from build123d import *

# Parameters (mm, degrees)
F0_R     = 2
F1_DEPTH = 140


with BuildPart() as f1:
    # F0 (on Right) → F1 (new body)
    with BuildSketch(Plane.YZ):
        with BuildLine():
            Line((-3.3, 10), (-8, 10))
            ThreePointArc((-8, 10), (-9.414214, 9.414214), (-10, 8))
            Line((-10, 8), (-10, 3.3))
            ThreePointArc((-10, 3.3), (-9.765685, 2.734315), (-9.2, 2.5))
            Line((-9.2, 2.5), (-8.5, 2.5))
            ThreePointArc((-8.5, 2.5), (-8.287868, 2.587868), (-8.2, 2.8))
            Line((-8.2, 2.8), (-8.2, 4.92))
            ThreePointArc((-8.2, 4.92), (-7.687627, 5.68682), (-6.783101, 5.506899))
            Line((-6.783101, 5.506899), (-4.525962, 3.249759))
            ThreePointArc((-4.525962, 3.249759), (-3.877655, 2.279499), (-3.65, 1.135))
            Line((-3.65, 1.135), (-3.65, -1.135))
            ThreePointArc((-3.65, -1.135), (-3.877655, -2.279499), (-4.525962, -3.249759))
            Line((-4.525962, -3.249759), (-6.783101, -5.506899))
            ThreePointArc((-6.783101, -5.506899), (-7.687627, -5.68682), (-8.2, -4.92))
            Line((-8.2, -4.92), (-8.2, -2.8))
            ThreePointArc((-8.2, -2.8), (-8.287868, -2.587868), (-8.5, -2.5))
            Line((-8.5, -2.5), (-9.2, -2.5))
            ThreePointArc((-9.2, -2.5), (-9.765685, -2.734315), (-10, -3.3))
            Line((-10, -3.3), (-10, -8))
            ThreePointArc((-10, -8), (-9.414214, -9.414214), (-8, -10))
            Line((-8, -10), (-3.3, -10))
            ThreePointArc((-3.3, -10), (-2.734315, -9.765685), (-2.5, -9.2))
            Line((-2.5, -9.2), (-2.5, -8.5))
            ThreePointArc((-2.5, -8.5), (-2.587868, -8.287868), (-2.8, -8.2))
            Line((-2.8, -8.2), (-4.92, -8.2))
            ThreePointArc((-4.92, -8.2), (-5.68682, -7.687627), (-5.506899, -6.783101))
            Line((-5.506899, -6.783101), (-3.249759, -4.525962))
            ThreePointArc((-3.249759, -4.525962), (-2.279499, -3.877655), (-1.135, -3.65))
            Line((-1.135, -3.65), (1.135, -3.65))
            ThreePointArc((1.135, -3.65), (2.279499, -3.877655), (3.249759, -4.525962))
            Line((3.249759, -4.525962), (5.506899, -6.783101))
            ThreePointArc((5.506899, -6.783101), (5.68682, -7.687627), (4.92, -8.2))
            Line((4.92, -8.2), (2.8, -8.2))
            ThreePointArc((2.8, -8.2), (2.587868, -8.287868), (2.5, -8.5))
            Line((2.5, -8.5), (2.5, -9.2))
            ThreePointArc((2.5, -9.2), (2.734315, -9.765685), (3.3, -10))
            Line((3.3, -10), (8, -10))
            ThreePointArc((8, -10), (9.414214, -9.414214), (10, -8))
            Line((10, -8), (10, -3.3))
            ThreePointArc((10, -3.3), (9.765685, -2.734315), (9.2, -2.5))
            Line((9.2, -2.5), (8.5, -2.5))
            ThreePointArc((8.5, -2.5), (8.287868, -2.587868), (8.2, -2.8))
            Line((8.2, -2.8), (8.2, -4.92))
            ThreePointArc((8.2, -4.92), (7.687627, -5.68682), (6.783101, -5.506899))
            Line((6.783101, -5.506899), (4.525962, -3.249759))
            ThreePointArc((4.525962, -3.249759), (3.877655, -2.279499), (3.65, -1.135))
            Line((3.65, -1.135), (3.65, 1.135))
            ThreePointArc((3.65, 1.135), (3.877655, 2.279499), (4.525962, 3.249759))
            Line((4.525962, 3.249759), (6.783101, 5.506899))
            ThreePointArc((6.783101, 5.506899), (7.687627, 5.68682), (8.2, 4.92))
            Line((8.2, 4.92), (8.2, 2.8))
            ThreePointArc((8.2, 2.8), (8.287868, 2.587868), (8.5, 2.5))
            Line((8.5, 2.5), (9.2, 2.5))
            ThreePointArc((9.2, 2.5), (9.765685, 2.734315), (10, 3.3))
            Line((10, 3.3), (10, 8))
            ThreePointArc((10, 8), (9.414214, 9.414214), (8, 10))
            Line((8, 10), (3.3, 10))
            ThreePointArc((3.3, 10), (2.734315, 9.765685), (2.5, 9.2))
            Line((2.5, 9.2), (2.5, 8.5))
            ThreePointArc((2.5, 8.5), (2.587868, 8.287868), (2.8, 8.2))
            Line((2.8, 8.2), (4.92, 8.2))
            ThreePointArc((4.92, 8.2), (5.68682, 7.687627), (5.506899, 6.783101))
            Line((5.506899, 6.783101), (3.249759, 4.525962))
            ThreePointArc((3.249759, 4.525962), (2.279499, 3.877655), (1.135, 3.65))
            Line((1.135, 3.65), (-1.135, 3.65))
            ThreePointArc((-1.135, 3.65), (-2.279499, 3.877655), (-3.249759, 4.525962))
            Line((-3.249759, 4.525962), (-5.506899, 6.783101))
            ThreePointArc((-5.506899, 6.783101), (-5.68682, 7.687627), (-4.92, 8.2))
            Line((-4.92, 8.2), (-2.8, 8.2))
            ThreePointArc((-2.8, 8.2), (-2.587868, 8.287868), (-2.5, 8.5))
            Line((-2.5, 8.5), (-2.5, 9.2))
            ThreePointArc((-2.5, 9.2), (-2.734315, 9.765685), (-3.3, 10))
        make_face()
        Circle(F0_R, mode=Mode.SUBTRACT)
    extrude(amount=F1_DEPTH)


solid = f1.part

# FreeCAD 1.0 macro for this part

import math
import FreeCAD as App
import Part
import Sketcher
Q = App.Units.Quantity

doc = App.newDocument("Part")
params = doc.addObject("Spreadsheet::Sheet", "Params")
for row, (alias, value) in enumerate([
    ("sketch1_diameter", "4 mm"),
    ("sketch1_radius", "0.800001 mm"),
    ("sketch1_radius2", "0.3 mm"),
    ("sketch1_radius3", "0.83 mm"),
    ("sketch1_width", "4.7 mm"),
    ("pad1_length", "140 mm"),
], start=1):
    params.set(f"A{row}", alias)
    params.set(f"B{row}", "=" + value)
    params.setAlias(f"B{row}", alias)

body = doc.addObject("PartDesign::Body", "Body")

# Sketch on YZ plane
sketch1 = body.newObject("Sketcher::SketchObject", "Sketch")
sketch1.AttachmentSupport = (doc.getObject("YZ_Plane"), [""])
sketch1.MapMode = "FlatFace"
sketch1.addGeometry(Part.LineSegment(App.Vector(-3.3, 10, 0), App.Vector(-8, 10, 0)), False)
sketch1.addGeometry(Part.ArcOfCircle(Part.Circle(App.Vector(-8, 8, 0), App.Vector(0, 0, 1), 2), math.radians(90), math.radians(180)), False)
sketch1.addGeometry(Part.LineSegment(App.Vector(-10, 8, 0), App.Vector(-10, 3.3, 0)), False)
sketch1.addGeometry(Part.ArcOfCircle(Part.Circle(App.Vector(-9.2, 3.3, 0), App.Vector(0, 0, 1), 0.8), math.radians(-180), math.radians(-90)), False)
sketch1.addGeometry(Part.LineSegment(App.Vector(-9.2, 2.5, 0), App.Vector(-8.5, 2.5, 0)), False)
sketch1.addGeometry(Part.ArcOfCircle(Part.Circle(App.Vector(-8.5, 2.8, 0), App.Vector(0, 0, 1), 0.3), math.radians(-90), math.radians(0)), False)
sketch1.addGeometry(Part.LineSegment(App.Vector(-8.2, 2.8, 0), App.Vector(-8.2, 4.92, 0)), False)
sketch1.addGeometry(Part.ArcOfCircle(Part.Circle(App.Vector(-7.37, 4.92, 0), App.Vector(0, 0, 1), 0.83), math.radians(45), math.radians(180)), False)
sketch1.addGeometry(Part.LineSegment(App.Vector(-6.78, 5.51, 0), App.Vector(-4.53, 3.25, 0)), False)
sketch1.addGeometry(Part.ArcOfCircle(Part.Circle(App.Vector(-6.64, 1.13, 0), App.Vector(0, 0, 1), 2.99), math.radians(0), math.radians(45)), False)
sketch1.addGeometry(Part.LineSegment(App.Vector(-3.65, 1.14, 0), App.Vector(-3.65, -1.14, 0)), False)
sketch1.addGeometry(Part.ArcOfCircle(Part.Circle(App.Vector(-6.64, -1.13, 0), App.Vector(0, 0, 1), 2.99), math.radians(-45), math.radians(0)), False)
sketch1.addGeometry(Part.LineSegment(App.Vector(-4.53, -3.25, 0), App.Vector(-6.78, -5.51, 0)), False)
sketch1.addGeometry(Part.ArcOfCircle(Part.Circle(App.Vector(-7.37, -4.92, 0), App.Vector(0, 0, 1), 0.83), math.radians(-180), math.radians(-45)), False)
sketch1.addGeometry(Part.LineSegment(App.Vector(-8.2, -4.92, 0), App.Vector(-8.2, -2.8, 0)), False)
sketch1.addGeometry(Part.ArcOfCircle(Part.Circle(App.Vector(-8.5, -2.8, 0), App.Vector(0, 0, 1), 0.3), math.radians(0), math.radians(90)), False)
sketch1.addGeometry(Part.LineSegment(App.Vector(-8.5, -2.5, 0), App.Vector(-9.2, -2.5, 0)), False)
sketch1.addGeometry(Part.ArcOfCircle(Part.Circle(App.Vector(-9.2, -3.3, 0), App.Vector(0, 0, 1), 0.8), math.radians(90), math.radians(180)), False)
sketch1.addGeometry(Part.LineSegment(App.Vector(-10, -3.3, 0), App.Vector(-10, -8, 0)), False)
sketch1.addGeometry(Part.ArcOfCircle(Part.Circle(App.Vector(-8, -8, 0), App.Vector(0, 0, 1), 2), math.radians(180), math.radians(270)), False)
sketch1.addGeometry(Part.LineSegment(App.Vector(-8, -10, 0), App.Vector(-3.3, -10, 0)), False)
sketch1.addGeometry(Part.ArcOfCircle(Part.Circle(App.Vector(-3.3, -9.2, 0), App.Vector(0, 0, 1), 0.8), math.radians(-90), math.radians(0)), False)
sketch1.addGeometry(Part.LineSegment(App.Vector(-2.5, -9.2, 0), App.Vector(-2.5, -8.5, 0)), False)
sketch1.addGeometry(Part.ArcOfCircle(Part.Circle(App.Vector(-2.8, -8.5, 0), App.Vector(0, 0, 1), 0.3), math.radians(0), math.radians(90)), False)
sketch1.addGeometry(Part.LineSegment(App.Vector(-2.8, -8.2, 0), App.Vector(-4.92, -8.2, 0)), False)
sketch1.addGeometry(Part.ArcOfCircle(Part.Circle(App.Vector(-4.92, -7.37, 0), App.Vector(0, 0, 1), 0.83), math.radians(135), math.radians(270)), False)
sketch1.addGeometry(Part.LineSegment(App.Vector(-5.51, -6.78, 0), App.Vector(-3.25, -4.53, 0)), False)
sketch1.addGeometry(Part.ArcOfCircle(Part.Circle(App.Vector(-1.13, -6.64, 0), App.Vector(0, 0, 1), 2.99), math.radians(90), math.radians(135)), False)
sketch1.addGeometry(Part.LineSegment(App.Vector(-1.14, -3.65, 0), App.Vector(1.14, -3.65, 0)), False)
sketch1.addGeometry(Part.ArcOfCircle(Part.Circle(App.Vector(1.13, -6.64, 0), App.Vector(0, 0, 1), 2.99), math.radians(45), math.radians(90)), False)
sketch1.addGeometry(Part.LineSegment(App.Vector(3.25, -4.53, 0), App.Vector(5.51, -6.78, 0)), False)
sketch1.addGeometry(Part.ArcOfCircle(Part.Circle(App.Vector(4.92, -7.37, 0), App.Vector(0, 0, 1), 0.83), math.radians(-90), math.radians(45)), False)
sketch1.addGeometry(Part.LineSegment(App.Vector(4.92, -8.2, 0), App.Vector(2.8, -8.2, 0)), False)
sketch1.addGeometry(Part.ArcOfCircle(Part.Circle(App.Vector(2.8, -8.5, 0), App.Vector(0, 0, 1), 0.3), math.radians(90), math.radians(180)), False)
sketch1.addGeometry(Part.LineSegment(App.Vector(2.5, -8.5, 0), App.Vector(2.5, -9.2, 0)), False)
sketch1.addGeometry(Part.ArcOfCircle(Part.Circle(App.Vector(3.3, -9.2, 0), App.Vector(0, 0, 1), 0.8), math.radians(-180), math.radians(-90)), False)
sketch1.addGeometry(Part.LineSegment(App.Vector(3.3, -10, 0), App.Vector(8, -10, 0)), False)
sketch1.addGeometry(Part.ArcOfCircle(Part.Circle(App.Vector(8, -8, 0), App.Vector(0, 0, 1), 2), math.radians(-90), math.radians(0)), False)
sketch1.addGeometry(Part.LineSegment(App.Vector(10, -8, 0), App.Vector(10, -3.3, 0)), False)
sketch1.addGeometry(Part.ArcOfCircle(Part.Circle(App.Vector(9.2, -3.3, 0), App.Vector(0, 0, 1), 0.8), math.radians(0), math.radians(90)), False)
sketch1.addGeometry(Part.LineSegment(App.Vector(9.2, -2.5, 0), App.Vector(8.5, -2.5, 0)), False)
sketch1.addGeometry(Part.ArcOfCircle(Part.Circle(App.Vector(8.5, -2.8, 0), App.Vector(0, 0, 1), 0.3), math.radians(90), math.radians(180)), False)
sketch1.addGeometry(Part.LineSegment(App.Vector(8.2, -2.8, 0), App.Vector(8.2, -4.92, 0)), False)
sketch1.addGeometry(Part.ArcOfCircle(Part.Circle(App.Vector(7.37, -4.92, 0), App.Vector(0, 0, 1), 0.83), math.radians(-135), math.radians(0)), False)
sketch1.addGeometry(Part.LineSegment(App.Vector(6.78, -5.51, 0), App.Vector(4.53, -3.25, 0)), False)
sketch1.addGeometry(Part.ArcOfCircle(Part.Circle(App.Vector(6.64, -1.13, 0), App.Vector(0, 0, 1), 2.99), math.radians(-180), math.radians(-135)), False)
sketch1.addGeometry(Part.LineSegment(App.Vector(3.65, -1.14, 0), App.Vector(3.65, 1.14, 0)), False)
sketch1.addGeometry(Part.ArcOfCircle(Part.Circle(App.Vector(6.64, 1.13, 0), App.Vector(0, 0, 1), 2.99), math.radians(135), math.radians(180)), False)
sketch1.addGeometry(Part.LineSegment(App.Vector(4.53, 3.25, 0), App.Vector(6.78, 5.51, 0)), False)
sketch1.addGeometry(Part.ArcOfCircle(Part.Circle(App.Vector(7.37, 4.92, 0), App.Vector(0, 0, 1), 0.83), math.radians(0), math.radians(135)), False)
sketch1.addGeometry(Part.LineSegment(App.Vector(8.2, 4.92, 0), App.Vector(8.2, 2.8, 0)), False)
sketch1.addGeometry(Part.ArcOfCircle(Part.Circle(App.Vector(8.5, 2.8, 0), App.Vector(0, 0, 1), 0.3), math.radians(-180), math.radians(-90)), False)
sketch1.addGeometry(Part.LineSegment(App.Vector(8.5, 2.5, 0), App.Vector(9.2, 2.5, 0)), False)
sketch1.addGeometry(Part.ArcOfCircle(Part.Circle(App.Vector(9.2, 3.3, 0), App.Vector(0, 0, 1), 0.8), math.radians(-90), math.radians(0)), False)
sketch1.addGeometry(Part.LineSegment(App.Vector(10, 3.3, 0), App.Vector(10, 8, 0)), False)
sketch1.addGeometry(Part.ArcOfCircle(Part.Circle(App.Vector(8, 8, 0), App.Vector(0, 0, 1), 2), math.radians(0), math.radians(90)), False)
sketch1.addGeometry(Part.LineSegment(App.Vector(8, 10, 0), App.Vector(3.3, 10, 0)), False)
sketch1.addGeometry(Part.ArcOfCircle(Part.Circle(App.Vector(3.3, 9.2, 0), App.Vector(0, 0, 1), 0.8), math.radians(90), math.radians(180)), False)
sketch1.addGeometry(Part.LineSegment(App.Vector(2.5, 9.2, 0), App.Vector(2.5, 8.5, 0)), False)
sketch1.addGeometry(Part.ArcOfCircle(Part.Circle(App.Vector(2.8, 8.5, 0), App.Vector(0, 0, 1), 0.3), math.radians(-180), math.radians(-90)), False)
sketch1.addGeometry(Part.LineSegment(App.Vector(2.8, 8.2, 0), App.Vector(4.92, 8.2, 0)), False)
sketch1.addGeometry(Part.ArcOfCircle(Part.Circle(App.Vector(4.92, 7.37, 0), App.Vector(0, 0, 1), 0.83), math.radians(-45), math.radians(90)), False)
sketch1.addGeometry(Part.LineSegment(App.Vector(5.51, 6.78, 0), App.Vector(3.25, 4.53, 0)), False)
sketch1.addGeometry(Part.ArcOfCircle(Part.Circle(App.Vector(1.13, 6.64, 0), App.Vector(0, 0, 1), 2.99), math.radians(-90), math.radians(-45)), False)
sketch1.addGeometry(Part.LineSegment(App.Vector(1.14, 3.65, 0), App.Vector(-1.14, 3.65, 0)), False)
sketch1.addGeometry(Part.ArcOfCircle(Part.Circle(App.Vector(-1.13, 6.64, 0), App.Vector(0, 0, 1), 2.99), math.radians(-135), math.radians(-90)), False)
sketch1.addGeometry(Part.LineSegment(App.Vector(-3.25, 4.53, 0), App.Vector(-5.51, 6.78, 0)), False)
sketch1.addGeometry(Part.ArcOfCircle(Part.Circle(App.Vector(-4.92, 7.37, 0), App.Vector(0, 0, 1), 0.83), math.radians(90), math.radians(225)), False)
sketch1.addGeometry(Part.LineSegment(App.Vector(-4.92, 8.2, 0), App.Vector(-2.8, 8.2, 0)), False)
sketch1.addGeometry(Part.ArcOfCircle(Part.Circle(App.Vector(-2.8, 8.5, 0), App.Vector(0, 0, 1), 0.3), math.radians(-90), math.radians(0)), False)
sketch1.addGeometry(Part.LineSegment(App.Vector(-2.5, 8.5, 0), App.Vector(-2.5, 9.2, 0)), False)
sketch1.addGeometry(Part.ArcOfCircle(Part.Circle(App.Vector(-3.3, 9.2, 0), App.Vector(0, 0, 1), 0.8), math.radians(0), math.radians(90)), False)
sketch1.addGeometry(Part.Circle(App.Vector(0, 0, 0), App.Vector(0, 0, 1), 2), False)
sketch1.addConstraint(Sketcher.Constraint("Tangent", 0, 2, 1, 1))
sketch1.addConstraint(Sketcher.Constraint("Tangent", 1, 2, 2, 1))
sketch1.addConstraint(Sketcher.Constraint("Tangent", 2, 2, 3, 1))
sketch1.addConstraint(Sketcher.Constraint("Tangent", 3, 2, 4, 1))
sketch1.addConstraint(Sketcher.Constraint("Tangent", 4, 2, 5, 1))
sketch1.addConstraint(Sketcher.Constraint("Tangent", 5, 2, 6, 1))
sketch1.addConstraint(Sketcher.Constraint("Tangent", 6, 2, 7, 2))
sketch1.addConstraint(Sketcher.Constraint("Tangent", 7, 1, 8, 1))
sketch1.addConstraint(Sketcher.Constraint("Tangent", 8, 2, 9, 2))
sketch1.addConstraint(Sketcher.Constraint("Tangent", 9, 1, 10, 1))
sketch1.addConstraint(Sketcher.Constraint("Tangent", 10, 2, 11, 2))
sketch1.addConstraint(Sketcher.Constraint("Tangent", 11, 1, 12, 1))
sketch1.addConstraint(Sketcher.Constraint("Tangent", 12, 2, 13, 2))
sketch1.addConstraint(Sketcher.Constraint("Tangent", 13, 1, 14, 1))
sketch1.addConstraint(Sketcher.Constraint("Tangent", 14, 2, 15, 1))
sketch1.addConstraint(Sketcher.Constraint("Tangent", 15, 2, 16, 1))
sketch1.addConstraint(Sketcher.Constraint("Tangent", 16, 2, 17, 1))
sketch1.addConstraint(Sketcher.Constraint("Tangent", 17, 2, 18, 1))
sketch1.addConstraint(Sketcher.Constraint("Tangent", 18, 2, 19, 1))
sketch1.addConstraint(Sketcher.Constraint("Tangent", 19, 2, 20, 1))
sketch1.addConstraint(Sketcher.Constraint("Tangent", 20, 2, 21, 1))
sketch1.addConstraint(Sketcher.Constraint("Tangent", 21, 2, 22, 1))
sketch1.addConstraint(Sketcher.Constraint("Tangent", 22, 2, 23, 1))
sketch1.addConstraint(Sketcher.Constraint("Tangent", 23, 2, 24, 1))
sketch1.addConstraint(Sketcher.Constraint("Tangent", 24, 2, 25, 2))
sketch1.addConstraint(Sketcher.Constraint("Tangent", 25, 1, 26, 1))
sketch1.addConstraint(Sketcher.Constraint("Tangent", 26, 2, 27, 2))
sketch1.addConstraint(Sketcher.Constraint("Tangent", 27, 1, 28, 1))
sketch1.addConstraint(Sketcher.Constraint("Tangent", 28, 2, 29, 2))
sketch1.addConstraint(Sketcher.Constraint("Tangent", 29, 1, 30, 1))
sketch1.addConstraint(Sketcher.Constraint("Tangent", 30, 2, 31, 2))
sketch1.addConstraint(Sketcher.Constraint("Tangent", 31, 1, 32, 1))
sketch1.addConstraint(Sketcher.Constraint("Tangent", 32, 2, 33, 1))
sketch1.addConstraint(Sketcher.Constraint("Tangent", 33, 2, 34, 1))
sketch1.addConstraint(Sketcher.Constraint("Tangent", 34, 2, 35, 1))
sketch1.addConstraint(Sketcher.Constraint("Tangent", 35, 2, 36, 1))
sketch1.addConstraint(Sketcher.Constraint("Tangent", 36, 2, 37, 1))
sketch1.addConstraint(Sketcher.Constraint("Tangent", 37, 2, 38, 1))
sketch1.addConstraint(Sketcher.Constraint("Tangent", 38, 2, 39, 1))
sketch1.addConstraint(Sketcher.Constraint("Tangent", 39, 2, 40, 1))
sketch1.addConstraint(Sketcher.Constraint("Tangent", 40, 2, 41, 1))
sketch1.addConstraint(Sketcher.Constraint("Tangent", 41, 2, 42, 1))
sketch1.addConstraint(Sketcher.Constraint("Tangent", 42, 2, 43, 2))
sketch1.addConstraint(Sketcher.Constraint("Tangent", 43, 1, 44, 1))
sketch1.addConstraint(Sketcher.Constraint("Tangent", 44, 2, 45, 2))
sketch1.addConstraint(Sketcher.Constraint("Tangent", 45, 1, 46, 1))
sketch1.addConstraint(Sketcher.Constraint("Tangent", 46, 2, 47, 2))
sketch1.addConstraint(Sketcher.Constraint("Tangent", 47, 1, 48, 1))
sketch1.addConstraint(Sketcher.Constraint("Tangent", 48, 2, 49, 2))
sketch1.addConstraint(Sketcher.Constraint("Tangent", 49, 1, 50, 1))
sketch1.addConstraint(Sketcher.Constraint("Tangent", 50, 2, 51, 1))
sketch1.addConstraint(Sketcher.Constraint("Tangent", 51, 2, 52, 1))
sketch1.addConstraint(Sketcher.Constraint("Tangent", 52, 2, 53, 1))
sketch1.addConstraint(Sketcher.Constraint("Tangent", 53, 2, 54, 1))
sketch1.addConstraint(Sketcher.Constraint("Tangent", 54, 2, 55, 1))
sketch1.addConstraint(Sketcher.Constraint("Tangent", 55, 2, 56, 1))
sketch1.addConstraint(Sketcher.Constraint("Tangent", 56, 2, 57, 1))
sketch1.addConstraint(Sketcher.Constraint("Tangent", 57, 2, 58, 1))
sketch1.addConstraint(Sketcher.Constraint("Tangent", 58, 2, 59, 1))
sketch1.addConstraint(Sketcher.Constraint("Tangent", 59, 2, 60, 1))
sketch1.addConstraint(Sketcher.Constraint("Tangent", 60, 2, 61, 2))
sketch1.addConstraint(Sketcher.Constraint("Tangent", 61, 1, 62, 1))
sketch1.addConstraint(Sketcher.Constraint("Tangent", 62, 2, 63, 2))
sketch1.addConstraint(Sketcher.Constraint("Tangent", 63, 1, 64, 1))
sketch1.addConstraint(Sketcher.Constraint("Tangent", 64, 2, 65, 2))
sketch1.addConstraint(Sketcher.Constraint("Tangent", 65, 1, 66, 1))
sketch1.addConstraint(Sketcher.Constraint("Tangent", 66, 2, 67, 2))
sketch1.addConstraint(Sketcher.Constraint("Tangent", 67, 1, 68, 1))
sketch1.addConstraint(Sketcher.Constraint("Tangent", 68, 2, 69, 1))
sketch1.addConstraint(Sketcher.Constraint("Tangent", 69, 2, 70, 1))
sketch1.addConstraint(Sketcher.Constraint("Tangent", 70, 2, 71, 1))
sketch1.addConstraint(Sketcher.Constraint("Tangent", 71, 2, 0, 1))
sketch1.addConstraint(Sketcher.Constraint("Horizontal", 0))
sketch1.addConstraint(Sketcher.Constraint("Vertical", 2))
sketch1.addConstraint(Sketcher.Constraint("Horizontal", 4))
sketch1.addConstraint(Sketcher.Constraint("Vertical", 6))
sketch1.addConstraint(Sketcher.Constraint("Vertical", 10))
sketch1.addConstraint(Sketcher.Constraint("Vertical", 14))
sketch1.addConstraint(Sketcher.Constraint("Horizontal", 16))
sketch1.addConstraint(Sketcher.Constraint("Vertical", 18))
sketch1.addConstraint(Sketcher.Constraint("Horizontal", 20))
sketch1.addConstraint(Sketcher.Constraint("Vertical", 22))
sketch1.addConstraint(Sketcher.Constraint("Horizontal", 24))
sketch1.addConstraint(Sketcher.Constraint("Horizontal", 28))
sketch1.addConstraint(Sketcher.Constraint("Horizontal", 32))
sketch1.addConstraint(Sketcher.Constraint("Vertical", 34))
sketch1.addConstraint(Sketcher.Constraint("Horizontal", 36))
sketch1.addConstraint(Sketcher.Constraint("Vertical", 38))
sketch1.addConstraint(Sketcher.Constraint("Horizontal", 40))
sketch1.addConstraint(Sketcher.Constraint("Vertical", 42))
sketch1.addConstraint(Sketcher.Constraint("Vertical", 46))
sketch1.addConstraint(Sketcher.Constraint("Vertical", 50))
sketch1.addConstraint(Sketcher.Constraint("Horizontal", 52))
sketch1.addConstraint(Sketcher.Constraint("Vertical", 54))
sketch1.addConstraint(Sketcher.Constraint("Horizontal", 56))
sketch1.addConstraint(Sketcher.Constraint("Vertical", 58))
sketch1.addConstraint(Sketcher.Constraint("Horizontal", 60))
sketch1.addConstraint(Sketcher.Constraint("Horizontal", 64))
sketch1.addConstraint(Sketcher.Constraint("Horizontal", 68))
sketch1.addConstraint(Sketcher.Constraint("Vertical", 70))
sketch1.addConstraint(Sketcher.Constraint("Coincident", 72, 3, -1, 1))
sketch1.addConstraint(Sketcher.Constraint("Equal", 9, 11))
sketch1.addConstraint(Sketcher.Constraint("Equal", 7, 13))
sketch1.addConstraint(Sketcher.Constraint("Equal", 5, 15))
sketch1.addConstraint(Sketcher.Constraint("Equal", 3, 17))
sketch1.addConstraint(Sketcher.Constraint("Equal", 1, 19))
sketch1.addConstraint(Sketcher.Constraint("Equal", 17, 21))
sketch1.addConstraint(Sketcher.Constraint("Equal", 15, 23))
sketch1.addConstraint(Sketcher.Constraint("Equal", 13, 25))
sketch1.addConstraint(Sketcher.Constraint("Equal", 11, 27))
sketch1.addConstraint(Sketcher.Constraint("Equal", 27, 29))
sketch1.addConstraint(Sketcher.Constraint("Equal", 25, 31))
sketch1.addConstraint(Sketcher.Constraint("Equal", 23, 33))
sketch1.addConstraint(Sketcher.Constraint("Equal", 21, 35))
sketch1.addConstraint(Sketcher.Constraint("Equal", 19, 37))
sketch1.addConstraint(Sketcher.Constraint("Equal", 35, 39))
sketch1.addConstraint(Sketcher.Constraint("Equal", 33, 41))
sketch1.addConstraint(Sketcher.Constraint("Equal", 31, 43))
sketch1.addConstraint(Sketcher.Constraint("Equal", 29, 45))
sketch1.addConstraint(Sketcher.Constraint("Equal", 45, 47))
sketch1.addConstraint(Sketcher.Constraint("Equal", 43, 49))
sketch1.addConstraint(Sketcher.Constraint("Equal", 41, 51))
sketch1.addConstraint(Sketcher.Constraint("Equal", 39, 53))
sketch1.addConstraint(Sketcher.Constraint("Equal", 37, 55))
sketch1.addConstraint(Sketcher.Constraint("Equal", 53, 57))
sketch1.addConstraint(Sketcher.Constraint("Equal", 51, 59))
sketch1.addConstraint(Sketcher.Constraint("Equal", 49, 61))
sketch1.addConstraint(Sketcher.Constraint("Equal", 47, 63))
sketch1.addConstraint(Sketcher.Constraint("Equal", 63, 65))
sketch1.addConstraint(Sketcher.Constraint("Equal", 61, 67))
sketch1.addConstraint(Sketcher.Constraint("Equal", 59, 69))
sketch1.addConstraint(Sketcher.Constraint("Equal", 57, 71))
sketch1.addConstraint(Sketcher.Constraint("Equal", 55, 72))
sketch1.addConstraint(Sketcher.Constraint("Symmetric", 1, 3, 37, 3, -1, 1))
sketch1.addConstraint(Sketcher.Constraint("Symmetric", 5, 3, 41, 3, -1, 1))
sketch1.addConstraint(Sketcher.Constraint("Symmetric", 9, 3, 45, 3, -1, 1))
sketch1.addConstraint(Sketcher.Constraint("Symmetric", 13, 3, 49, 3, -1, 1))
sketch1.addConstraint(Sketcher.Constraint("Symmetric", 17, 3, 53, 3, -1, 1))
sketch1.addConstraint(Sketcher.Constraint("Symmetric", 21, 3, 57, 3, -1, 1))
sketch1.addConstraint(Sketcher.Constraint("Symmetric", 25, 3, 61, 3, -1, 1))
sketch1.addConstraint(Sketcher.Constraint("Symmetric", 27, 3, 63, 3, -1, 1))
sketch1.addConstraint(Sketcher.Constraint("Symmetric", 31, 3, 67, 3, -1, 1))
sketch1.addConstraint(Sketcher.Constraint("Symmetric", 25, 3, 31, 3, -2))
sketch1.addConstraint(Sketcher.Constraint("Symmetric", 21, 3, 35, 3, -2))
sketch1.addConstraint(Sketcher.Constraint("Symmetric", 17, 3, 39, 3, -2))
sketch1.addConstraint(Sketcher.Constraint("Symmetric", 13, 3, 43, 3, -2))
sketch1.addConstraint(Sketcher.Constraint("Symmetric", 8, 2, 47, 1, -2))
sketch1.addConstraint(Sketcher.Constraint("Perpendicular", 8, 12))
sketch1.addConstraint(Sketcher.Constraint("Parallel", 12, 26))
sketch1.addConstraint(Sketcher.Constraint("Perpendicular", 26, 30))
sketch1.addConstraint(Sketcher.Constraint("Perpendicular", 44, 48))
sketch1.addConstraint(Sketcher.Constraint("Perpendicular", 62, 66))
sketch1.addConstraint(Sketcher.Constraint("Vertical", 23, 3, 69, 3))
sketch1.addConstraint(Sketcher.Constraint("Equal", 56, 2))
sketch1.addConstraint(Sketcher.Constraint("Equal", 68, 6))
sketch1.addConstraint(Sketcher.Constraint("Equal", 64, 10))
sketch1.addConstraint(Sketcher.Constraint("Equal", 52, 22))
sketch1.addConstraint(Sketcher.Constraint("Equal", 12, 26))
sketch1.addConstraint(Sketcher.Constraint("Diameter", 72, Q("4 mm")))
sketch1.addConstraint(Sketcher.Constraint("Radius", 3, Q("0.800001 mm")))
sketch1.addConstraint(Sketcher.Constraint("Radius", 5, Q("0.3 mm")))
sketch1.addConstraint(Sketcher.Constraint("Radius", 7, Q("0.83 mm")))
sketch1.addConstraint(Sketcher.Constraint("DistanceX", 0, 2, 0, 1, Q("4.7 mm")))
sketch1.addConstraint(Sketcher.Constraint("DistanceX", 4, 1, 4, 2, Q("0.7 mm")))
sketch1.addConstraint(Sketcher.Constraint("DistanceX", 1, 3, -1, 1, Q("8.000001 mm")))
sketch1.addConstraint(Sketcher.Constraint("DistanceX", 24, 2, 24, 1, Q("2.12 mm")))
sketch1.addConstraint(Sketcher.Constraint("DistanceX", 28, 1, 28, 2, Q("2.27 mm")))
sketch1.addConstraint(Sketcher.Constraint("DistanceX", 9, 1, -1, 1, Q("3.65 mm")))
sketch1.setExpression("Constraints[158]", "Params.sketch1_diameter")
sketch1.setExpression("Constraints[159]", "Params.sketch1_radius")
sketch1.setExpression("Constraints[160]", "Params.sketch1_radius2")
sketch1.setExpression("Constraints[161]", "Params.sketch1_radius3")
sketch1.setExpression("Constraints[162]", "Params.sketch1_width")
pad1 = body.newObject("PartDesign::Pad", "Pad")
pad1.Profile = sketch1
pad1.setExpression("Length", "Params.pad1_length")

doc.recompute()
